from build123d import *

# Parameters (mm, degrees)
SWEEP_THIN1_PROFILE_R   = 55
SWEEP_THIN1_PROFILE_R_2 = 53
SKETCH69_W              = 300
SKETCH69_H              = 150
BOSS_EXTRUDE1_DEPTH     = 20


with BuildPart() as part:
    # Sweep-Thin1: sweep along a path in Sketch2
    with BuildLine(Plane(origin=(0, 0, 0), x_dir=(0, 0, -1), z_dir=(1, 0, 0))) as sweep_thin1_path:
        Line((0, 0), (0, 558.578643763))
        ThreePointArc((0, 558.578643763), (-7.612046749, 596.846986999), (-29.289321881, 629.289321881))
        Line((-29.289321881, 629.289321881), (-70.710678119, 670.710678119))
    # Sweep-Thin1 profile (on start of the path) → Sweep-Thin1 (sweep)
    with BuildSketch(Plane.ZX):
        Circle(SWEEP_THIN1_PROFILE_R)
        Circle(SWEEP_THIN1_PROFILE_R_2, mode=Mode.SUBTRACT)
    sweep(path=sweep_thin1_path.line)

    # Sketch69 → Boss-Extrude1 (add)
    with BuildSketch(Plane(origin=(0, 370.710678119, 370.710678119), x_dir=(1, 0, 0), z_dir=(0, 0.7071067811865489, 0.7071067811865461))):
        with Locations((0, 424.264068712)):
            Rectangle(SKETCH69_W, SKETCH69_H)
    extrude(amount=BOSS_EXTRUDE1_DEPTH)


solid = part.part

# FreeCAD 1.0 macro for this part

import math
import FreeCAD as App
import Part
import Sketcher
from FreeCAD import Vector
Q = App.Units.Quantity


def add_polygon(sketch, points):
    """Adds a closed chain of lines whose ends are joined by coincident constraints."""
    first, n = sketch.GeometryCount, len(points)
    for a, b in zip(points, points[1:] + points[:1]):
        sketch.addGeometry(Part.LineSegment(App.Vector(*a, 0), App.Vector(*b, 0)), False)
    for i in range(n):
        sketch.addConstraint(Sketcher.Constraint("Coincident", first + i, 2, first + (i + 1) % n, 1))

doc = App.newDocument("Part")
body = doc.addObject("PartDesign::Body", "Body")

sketch1 = body.newObject("Sketcher::SketchObject", "Sketch")
sketch1.AttachmentSupport = (doc.getObject("XZ_Plane"), [""])
sketch1.MapMode = "FlatFace"
sketch1.addGeometry([
    Part.Circle(Vector(0, 0, 0), Vector(0, 0, 1), 55),
    Part.Circle(Vector(0, 0, 0), Vector(0, 0, 1), 53),
], False)
sketch1.addConstraint([
    Sketcher.Constraint("Coincident", 0, 3, -1, 1),
    Sketcher.Constraint("Coincident", 1, 3, -1, 1),
    Sketcher.Constraint("Diameter", 0, 110.0),
    Sketcher.Constraint("Diameter", 1, 106.0),
])

sketch2 = body.newObject("Sketcher::SketchObject", "Sketch001")
sketch2.AttachmentSupport = (doc.getObject("YZ_Plane"), [""])
sketch2.MapMode = "FlatFace"
sketch2.addGeometry([
    Part.LineSegment(Vector(0, 0, 0), Vector(559, 0, 0)),
    Part.ArcOfCircle(Part.Circle(Vector(559, 100, 0), Vector(0, 0, 1), 100), math.radians(-90), math.radians(-45)),
    Part.LineSegment(Vector(629, 29, 0), Vector(671, 71, 0)),
], False)
sketch2.addConstraint([
    Sketcher.Constraint("Tangent", 0, 2, 1, 1),
    Sketcher.Constraint("Tangent", 1, 2, 2, 1),
    Sketcher.Constraint("Horizontal", 0),
    Sketcher.Constraint("Coincident", 0, 1, -1, 1),
    Sketcher.Constraint("Radius", 1, 100.0),
    Sketcher.Constraint("Angle", 2, Q("45 deg")),
    Sketcher.Constraint("DistanceX", 0, 1, 0, 2, 558.578644),
    Sketcher.Constraint("DistanceX", -1, 1, 2, 2, 670.710678),
])
doc.recompute()

additivepipe = body.newObject("PartDesign::AdditivePipe", "AdditivePipe")
additivepipe.Profile = sketch1
additivepipe.Spine = (sketch2, ["Edge1", "Edge2", "Edge3"])

sketch3 = body.newObject("Sketcher::SketchObject", "Sketch002")
sketch3.Placement = App.Placement(Vector(0, 370.710678, 370.710678), App.Rotation(Vector(1, 0, 0), Vector(0, 0.707106781, -0.707106781), Vector(0, 0.707106781, 0.707106781), "ZXY"))
add_polygon(sketch3, [(-150, 499), (-150, 349), (150, 349), (150, 499)])
sketch3.addConstraint([
    Sketcher.Constraint("Vertical", 0),
    Sketcher.Constraint("Horizontal", 1),
    Sketcher.Constraint("Vertical", 2),
    Sketcher.Constraint("Horizontal", 3),
    Sketcher.Constraint("DistanceX", 1, 1, 1, 2, 300.0),
    Sketcher.Constraint("DistanceY", 0, 2, 0, 1, 150.0),
    Sketcher.Constraint("DistanceX", 0, 2, -1, 1, 150.0),
    Sketcher.Constraint("DistanceY", -1, 1, 0, 2, 349.264069),
])
pad1 = body.newObject("PartDesign::Pad", "Pad")
pad1.Profile = sketch3
pad1.Length = 20

doc.recompute()
